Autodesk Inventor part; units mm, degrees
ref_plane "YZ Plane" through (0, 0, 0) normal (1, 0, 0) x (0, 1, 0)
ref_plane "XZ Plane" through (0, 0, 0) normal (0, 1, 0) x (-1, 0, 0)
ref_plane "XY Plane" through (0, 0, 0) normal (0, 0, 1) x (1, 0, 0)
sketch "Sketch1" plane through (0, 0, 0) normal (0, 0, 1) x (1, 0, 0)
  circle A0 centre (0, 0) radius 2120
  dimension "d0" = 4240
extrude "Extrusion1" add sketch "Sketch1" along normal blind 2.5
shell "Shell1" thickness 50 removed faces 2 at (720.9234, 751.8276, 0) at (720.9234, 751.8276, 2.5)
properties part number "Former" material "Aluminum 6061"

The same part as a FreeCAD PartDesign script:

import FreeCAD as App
import Part
import Sketcher
Q = App.Units.Quantity


def faces_at(feature, points):
    """Names of the faces that lie closest to the given points."""
    faces = feature.Shape.Faces
    near = lambda p: min(range(len(faces)), key=lambda i: faces[i].distToShape(Part.Vertex(*p))[0])
    return sorted({f"Face{near(p) + 1}" for p in points})

doc = App.newDocument("Part")
body = doc.addObject("PartDesign::Body", "Body")

# Sketch on XY plane
sketch1 = doc.addObject("Sketcher::SketchObject", "Sketch")
body.addObject(sketch1)
sketch1.AttachmentSupport = (doc.XY_Plane, [""])
sketch1.MapMode = "FlatFace"
sketch1.addGeometry(Part.Circle(App.Vector(0, 0, 0), App.Vector(0, 0, 1), 2120), False)
sketch1.addConstraint(Sketcher.Constraint("Coincident", 0, 3, -1, 1))
sketch1.addConstraint(Sketcher.Constraint("Diameter", 0, Q("4240 mm")))
pad1 = doc.addObject("PartDesign::Pad", "Pad")
body.addObject(pad1)
pad1.Profile = sketch1
pad1.Length = 2.5
doc.recompute()

thickness = doc.addObject("PartDesign::Thickness", "Thickness")
body.addObject(thickness)
thickness.Base = (pad1, faces_at(pad1, [(720.923, 751.828, 0), (720.923, 751.828, 2.5)]))
thickness.Value = 50
thickness.Reversed = True
thickness.Join = "Intersection"

doc.recompute()
